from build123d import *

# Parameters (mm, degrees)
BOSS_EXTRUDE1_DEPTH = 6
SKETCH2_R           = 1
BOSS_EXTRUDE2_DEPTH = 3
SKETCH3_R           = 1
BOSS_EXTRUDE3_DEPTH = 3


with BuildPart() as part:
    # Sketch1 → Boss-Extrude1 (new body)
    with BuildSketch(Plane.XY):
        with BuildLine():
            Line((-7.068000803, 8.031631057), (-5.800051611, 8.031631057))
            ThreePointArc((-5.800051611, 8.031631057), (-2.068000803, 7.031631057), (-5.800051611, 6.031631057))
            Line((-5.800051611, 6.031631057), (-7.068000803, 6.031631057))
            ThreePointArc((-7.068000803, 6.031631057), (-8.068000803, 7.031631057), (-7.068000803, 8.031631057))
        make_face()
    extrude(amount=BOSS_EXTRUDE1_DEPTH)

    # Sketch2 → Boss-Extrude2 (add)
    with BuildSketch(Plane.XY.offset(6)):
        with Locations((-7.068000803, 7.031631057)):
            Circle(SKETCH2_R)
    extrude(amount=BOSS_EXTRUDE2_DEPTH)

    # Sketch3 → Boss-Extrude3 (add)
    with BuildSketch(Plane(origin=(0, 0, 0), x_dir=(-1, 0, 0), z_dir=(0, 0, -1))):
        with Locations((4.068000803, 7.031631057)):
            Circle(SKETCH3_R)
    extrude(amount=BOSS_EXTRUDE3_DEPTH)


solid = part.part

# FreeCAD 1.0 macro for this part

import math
import FreeCAD as App
import Part
import Sketcher

V = App.Vector

doc = App.newDocument("Part")
body = doc.addObject("PartDesign::Body", "Body")

# Sketch on XY plane
sketch1 = doc.addObject("Sketcher::SketchObject", "Sketch")
body.addObject(sketch1)
sketch1.AttachmentSupport = (doc.XY_Plane, [""])
sketch1.MapMode = "FlatFace"
sketch1.addGeometry([
    Part.LineSegment(V(-5.8, 8, 0), V(-7.1, 8, 0)),
    Part.ArcOfCircle(Part.Circle(V(-7.1, 7, 0), V(0, 0, 1), 1), math.radians(90), math.radians(270)),
    Part.LineSegment(V(-7.1, 6, 0), V(-5.8, 6, 0)),
    Part.ArcOfCircle(Part.Circle(V(-4.1, 7, 0), V(0, 0, 1), 2), math.radians(-150), math.radians(150)),
], False)
sketch1.addConstraint([
    Sketcher.Constraint("Tangent", 0, 2, 1, 1),
    Sketcher.Constraint("Tangent", 1, 2, 2, 1),
    Sketcher.Constraint("Coincident", 2, 2, 3, 1),
    Sketcher.Constraint("Coincident", 3, 2, 0, 1),
    Sketcher.Constraint("Horizontal", 0),
    Sketcher.Constraint("Horizontal", 2),
    Sketcher.Constraint("Horizontal", 1, 3, 3, 3),
    Sketcher.Constraint("Radius", 1, 1.0),
    Sketcher.Constraint("Radius", 3, 2.0),
    Sketcher.Constraint("DistanceX", 1, 3, 3, 3, 3.0),
    Sketcher.Constraint("DistanceX", 1, 3, -1, 1, 7.068001),
    Sketcher.Constraint("DistanceY", -1, 1, 1, 3, 7.031631),
])
pad1 = doc.addObject("PartDesign::Pad", "Pad")
body.addObject(pad1)
pad1.Profile = sketch1
pad1.Length = 6

# Sketch on XY plane
sketch2 = doc.addObject("Sketcher::SketchObject", "Sketch001")
body.addObject(sketch2)
sketch2.AttachmentSupport = (doc.XY_Plane, [""])
sketch2.MapMode = "FlatFace"
sketch2.AttachmentOffset = App.Placement(V(0, 0, 6), App.Rotation())
sketch2.addGeometry(Part.Circle(V(-7.1, 7, 0), V(0, 0, 1), 1), False)
sketch2.addConstraint([
    Sketcher.Constraint("Diameter", 0, 2.0),
    Sketcher.Constraint("DistanceX", 0, 3, -1, 1, 7.068001),
    Sketcher.Constraint("DistanceY", -1, 1, 0, 3, 7.031631),
])
pad2 = doc.addObject("PartDesign::Pad", "Pad001")
body.addObject(pad2)
pad2.Profile = sketch2
pad2.Length = 3

# Sketch on XY plane
sketch3 = doc.addObject("Sketcher::SketchObject", "Sketch002")
body.addObject(sketch3)
sketch3.AttachmentSupport = (doc.XY_Plane, [""])
sketch3.MapMode = "FlatFace"
sketch3.addGeometry(Part.Circle(V(-4.1, 7, 0), V(0, 0, 1), 1), False)
sketch3.addConstraint([
    Sketcher.Constraint("Diameter", 0, 2.0),
    Sketcher.Constraint("DistanceX", 0, 3, -1, 1, 4.068001),
    Sketcher.Constraint("DistanceY", -1, 1, 0, 3, 7.031631),
])
pad3 = doc.addObject("PartDesign::Pad", "Pad002")
body.addObject(pad3)
pad3.Profile = sketch3
pad3.Length = 3
pad3.Reversed = True

doc.recompute()
